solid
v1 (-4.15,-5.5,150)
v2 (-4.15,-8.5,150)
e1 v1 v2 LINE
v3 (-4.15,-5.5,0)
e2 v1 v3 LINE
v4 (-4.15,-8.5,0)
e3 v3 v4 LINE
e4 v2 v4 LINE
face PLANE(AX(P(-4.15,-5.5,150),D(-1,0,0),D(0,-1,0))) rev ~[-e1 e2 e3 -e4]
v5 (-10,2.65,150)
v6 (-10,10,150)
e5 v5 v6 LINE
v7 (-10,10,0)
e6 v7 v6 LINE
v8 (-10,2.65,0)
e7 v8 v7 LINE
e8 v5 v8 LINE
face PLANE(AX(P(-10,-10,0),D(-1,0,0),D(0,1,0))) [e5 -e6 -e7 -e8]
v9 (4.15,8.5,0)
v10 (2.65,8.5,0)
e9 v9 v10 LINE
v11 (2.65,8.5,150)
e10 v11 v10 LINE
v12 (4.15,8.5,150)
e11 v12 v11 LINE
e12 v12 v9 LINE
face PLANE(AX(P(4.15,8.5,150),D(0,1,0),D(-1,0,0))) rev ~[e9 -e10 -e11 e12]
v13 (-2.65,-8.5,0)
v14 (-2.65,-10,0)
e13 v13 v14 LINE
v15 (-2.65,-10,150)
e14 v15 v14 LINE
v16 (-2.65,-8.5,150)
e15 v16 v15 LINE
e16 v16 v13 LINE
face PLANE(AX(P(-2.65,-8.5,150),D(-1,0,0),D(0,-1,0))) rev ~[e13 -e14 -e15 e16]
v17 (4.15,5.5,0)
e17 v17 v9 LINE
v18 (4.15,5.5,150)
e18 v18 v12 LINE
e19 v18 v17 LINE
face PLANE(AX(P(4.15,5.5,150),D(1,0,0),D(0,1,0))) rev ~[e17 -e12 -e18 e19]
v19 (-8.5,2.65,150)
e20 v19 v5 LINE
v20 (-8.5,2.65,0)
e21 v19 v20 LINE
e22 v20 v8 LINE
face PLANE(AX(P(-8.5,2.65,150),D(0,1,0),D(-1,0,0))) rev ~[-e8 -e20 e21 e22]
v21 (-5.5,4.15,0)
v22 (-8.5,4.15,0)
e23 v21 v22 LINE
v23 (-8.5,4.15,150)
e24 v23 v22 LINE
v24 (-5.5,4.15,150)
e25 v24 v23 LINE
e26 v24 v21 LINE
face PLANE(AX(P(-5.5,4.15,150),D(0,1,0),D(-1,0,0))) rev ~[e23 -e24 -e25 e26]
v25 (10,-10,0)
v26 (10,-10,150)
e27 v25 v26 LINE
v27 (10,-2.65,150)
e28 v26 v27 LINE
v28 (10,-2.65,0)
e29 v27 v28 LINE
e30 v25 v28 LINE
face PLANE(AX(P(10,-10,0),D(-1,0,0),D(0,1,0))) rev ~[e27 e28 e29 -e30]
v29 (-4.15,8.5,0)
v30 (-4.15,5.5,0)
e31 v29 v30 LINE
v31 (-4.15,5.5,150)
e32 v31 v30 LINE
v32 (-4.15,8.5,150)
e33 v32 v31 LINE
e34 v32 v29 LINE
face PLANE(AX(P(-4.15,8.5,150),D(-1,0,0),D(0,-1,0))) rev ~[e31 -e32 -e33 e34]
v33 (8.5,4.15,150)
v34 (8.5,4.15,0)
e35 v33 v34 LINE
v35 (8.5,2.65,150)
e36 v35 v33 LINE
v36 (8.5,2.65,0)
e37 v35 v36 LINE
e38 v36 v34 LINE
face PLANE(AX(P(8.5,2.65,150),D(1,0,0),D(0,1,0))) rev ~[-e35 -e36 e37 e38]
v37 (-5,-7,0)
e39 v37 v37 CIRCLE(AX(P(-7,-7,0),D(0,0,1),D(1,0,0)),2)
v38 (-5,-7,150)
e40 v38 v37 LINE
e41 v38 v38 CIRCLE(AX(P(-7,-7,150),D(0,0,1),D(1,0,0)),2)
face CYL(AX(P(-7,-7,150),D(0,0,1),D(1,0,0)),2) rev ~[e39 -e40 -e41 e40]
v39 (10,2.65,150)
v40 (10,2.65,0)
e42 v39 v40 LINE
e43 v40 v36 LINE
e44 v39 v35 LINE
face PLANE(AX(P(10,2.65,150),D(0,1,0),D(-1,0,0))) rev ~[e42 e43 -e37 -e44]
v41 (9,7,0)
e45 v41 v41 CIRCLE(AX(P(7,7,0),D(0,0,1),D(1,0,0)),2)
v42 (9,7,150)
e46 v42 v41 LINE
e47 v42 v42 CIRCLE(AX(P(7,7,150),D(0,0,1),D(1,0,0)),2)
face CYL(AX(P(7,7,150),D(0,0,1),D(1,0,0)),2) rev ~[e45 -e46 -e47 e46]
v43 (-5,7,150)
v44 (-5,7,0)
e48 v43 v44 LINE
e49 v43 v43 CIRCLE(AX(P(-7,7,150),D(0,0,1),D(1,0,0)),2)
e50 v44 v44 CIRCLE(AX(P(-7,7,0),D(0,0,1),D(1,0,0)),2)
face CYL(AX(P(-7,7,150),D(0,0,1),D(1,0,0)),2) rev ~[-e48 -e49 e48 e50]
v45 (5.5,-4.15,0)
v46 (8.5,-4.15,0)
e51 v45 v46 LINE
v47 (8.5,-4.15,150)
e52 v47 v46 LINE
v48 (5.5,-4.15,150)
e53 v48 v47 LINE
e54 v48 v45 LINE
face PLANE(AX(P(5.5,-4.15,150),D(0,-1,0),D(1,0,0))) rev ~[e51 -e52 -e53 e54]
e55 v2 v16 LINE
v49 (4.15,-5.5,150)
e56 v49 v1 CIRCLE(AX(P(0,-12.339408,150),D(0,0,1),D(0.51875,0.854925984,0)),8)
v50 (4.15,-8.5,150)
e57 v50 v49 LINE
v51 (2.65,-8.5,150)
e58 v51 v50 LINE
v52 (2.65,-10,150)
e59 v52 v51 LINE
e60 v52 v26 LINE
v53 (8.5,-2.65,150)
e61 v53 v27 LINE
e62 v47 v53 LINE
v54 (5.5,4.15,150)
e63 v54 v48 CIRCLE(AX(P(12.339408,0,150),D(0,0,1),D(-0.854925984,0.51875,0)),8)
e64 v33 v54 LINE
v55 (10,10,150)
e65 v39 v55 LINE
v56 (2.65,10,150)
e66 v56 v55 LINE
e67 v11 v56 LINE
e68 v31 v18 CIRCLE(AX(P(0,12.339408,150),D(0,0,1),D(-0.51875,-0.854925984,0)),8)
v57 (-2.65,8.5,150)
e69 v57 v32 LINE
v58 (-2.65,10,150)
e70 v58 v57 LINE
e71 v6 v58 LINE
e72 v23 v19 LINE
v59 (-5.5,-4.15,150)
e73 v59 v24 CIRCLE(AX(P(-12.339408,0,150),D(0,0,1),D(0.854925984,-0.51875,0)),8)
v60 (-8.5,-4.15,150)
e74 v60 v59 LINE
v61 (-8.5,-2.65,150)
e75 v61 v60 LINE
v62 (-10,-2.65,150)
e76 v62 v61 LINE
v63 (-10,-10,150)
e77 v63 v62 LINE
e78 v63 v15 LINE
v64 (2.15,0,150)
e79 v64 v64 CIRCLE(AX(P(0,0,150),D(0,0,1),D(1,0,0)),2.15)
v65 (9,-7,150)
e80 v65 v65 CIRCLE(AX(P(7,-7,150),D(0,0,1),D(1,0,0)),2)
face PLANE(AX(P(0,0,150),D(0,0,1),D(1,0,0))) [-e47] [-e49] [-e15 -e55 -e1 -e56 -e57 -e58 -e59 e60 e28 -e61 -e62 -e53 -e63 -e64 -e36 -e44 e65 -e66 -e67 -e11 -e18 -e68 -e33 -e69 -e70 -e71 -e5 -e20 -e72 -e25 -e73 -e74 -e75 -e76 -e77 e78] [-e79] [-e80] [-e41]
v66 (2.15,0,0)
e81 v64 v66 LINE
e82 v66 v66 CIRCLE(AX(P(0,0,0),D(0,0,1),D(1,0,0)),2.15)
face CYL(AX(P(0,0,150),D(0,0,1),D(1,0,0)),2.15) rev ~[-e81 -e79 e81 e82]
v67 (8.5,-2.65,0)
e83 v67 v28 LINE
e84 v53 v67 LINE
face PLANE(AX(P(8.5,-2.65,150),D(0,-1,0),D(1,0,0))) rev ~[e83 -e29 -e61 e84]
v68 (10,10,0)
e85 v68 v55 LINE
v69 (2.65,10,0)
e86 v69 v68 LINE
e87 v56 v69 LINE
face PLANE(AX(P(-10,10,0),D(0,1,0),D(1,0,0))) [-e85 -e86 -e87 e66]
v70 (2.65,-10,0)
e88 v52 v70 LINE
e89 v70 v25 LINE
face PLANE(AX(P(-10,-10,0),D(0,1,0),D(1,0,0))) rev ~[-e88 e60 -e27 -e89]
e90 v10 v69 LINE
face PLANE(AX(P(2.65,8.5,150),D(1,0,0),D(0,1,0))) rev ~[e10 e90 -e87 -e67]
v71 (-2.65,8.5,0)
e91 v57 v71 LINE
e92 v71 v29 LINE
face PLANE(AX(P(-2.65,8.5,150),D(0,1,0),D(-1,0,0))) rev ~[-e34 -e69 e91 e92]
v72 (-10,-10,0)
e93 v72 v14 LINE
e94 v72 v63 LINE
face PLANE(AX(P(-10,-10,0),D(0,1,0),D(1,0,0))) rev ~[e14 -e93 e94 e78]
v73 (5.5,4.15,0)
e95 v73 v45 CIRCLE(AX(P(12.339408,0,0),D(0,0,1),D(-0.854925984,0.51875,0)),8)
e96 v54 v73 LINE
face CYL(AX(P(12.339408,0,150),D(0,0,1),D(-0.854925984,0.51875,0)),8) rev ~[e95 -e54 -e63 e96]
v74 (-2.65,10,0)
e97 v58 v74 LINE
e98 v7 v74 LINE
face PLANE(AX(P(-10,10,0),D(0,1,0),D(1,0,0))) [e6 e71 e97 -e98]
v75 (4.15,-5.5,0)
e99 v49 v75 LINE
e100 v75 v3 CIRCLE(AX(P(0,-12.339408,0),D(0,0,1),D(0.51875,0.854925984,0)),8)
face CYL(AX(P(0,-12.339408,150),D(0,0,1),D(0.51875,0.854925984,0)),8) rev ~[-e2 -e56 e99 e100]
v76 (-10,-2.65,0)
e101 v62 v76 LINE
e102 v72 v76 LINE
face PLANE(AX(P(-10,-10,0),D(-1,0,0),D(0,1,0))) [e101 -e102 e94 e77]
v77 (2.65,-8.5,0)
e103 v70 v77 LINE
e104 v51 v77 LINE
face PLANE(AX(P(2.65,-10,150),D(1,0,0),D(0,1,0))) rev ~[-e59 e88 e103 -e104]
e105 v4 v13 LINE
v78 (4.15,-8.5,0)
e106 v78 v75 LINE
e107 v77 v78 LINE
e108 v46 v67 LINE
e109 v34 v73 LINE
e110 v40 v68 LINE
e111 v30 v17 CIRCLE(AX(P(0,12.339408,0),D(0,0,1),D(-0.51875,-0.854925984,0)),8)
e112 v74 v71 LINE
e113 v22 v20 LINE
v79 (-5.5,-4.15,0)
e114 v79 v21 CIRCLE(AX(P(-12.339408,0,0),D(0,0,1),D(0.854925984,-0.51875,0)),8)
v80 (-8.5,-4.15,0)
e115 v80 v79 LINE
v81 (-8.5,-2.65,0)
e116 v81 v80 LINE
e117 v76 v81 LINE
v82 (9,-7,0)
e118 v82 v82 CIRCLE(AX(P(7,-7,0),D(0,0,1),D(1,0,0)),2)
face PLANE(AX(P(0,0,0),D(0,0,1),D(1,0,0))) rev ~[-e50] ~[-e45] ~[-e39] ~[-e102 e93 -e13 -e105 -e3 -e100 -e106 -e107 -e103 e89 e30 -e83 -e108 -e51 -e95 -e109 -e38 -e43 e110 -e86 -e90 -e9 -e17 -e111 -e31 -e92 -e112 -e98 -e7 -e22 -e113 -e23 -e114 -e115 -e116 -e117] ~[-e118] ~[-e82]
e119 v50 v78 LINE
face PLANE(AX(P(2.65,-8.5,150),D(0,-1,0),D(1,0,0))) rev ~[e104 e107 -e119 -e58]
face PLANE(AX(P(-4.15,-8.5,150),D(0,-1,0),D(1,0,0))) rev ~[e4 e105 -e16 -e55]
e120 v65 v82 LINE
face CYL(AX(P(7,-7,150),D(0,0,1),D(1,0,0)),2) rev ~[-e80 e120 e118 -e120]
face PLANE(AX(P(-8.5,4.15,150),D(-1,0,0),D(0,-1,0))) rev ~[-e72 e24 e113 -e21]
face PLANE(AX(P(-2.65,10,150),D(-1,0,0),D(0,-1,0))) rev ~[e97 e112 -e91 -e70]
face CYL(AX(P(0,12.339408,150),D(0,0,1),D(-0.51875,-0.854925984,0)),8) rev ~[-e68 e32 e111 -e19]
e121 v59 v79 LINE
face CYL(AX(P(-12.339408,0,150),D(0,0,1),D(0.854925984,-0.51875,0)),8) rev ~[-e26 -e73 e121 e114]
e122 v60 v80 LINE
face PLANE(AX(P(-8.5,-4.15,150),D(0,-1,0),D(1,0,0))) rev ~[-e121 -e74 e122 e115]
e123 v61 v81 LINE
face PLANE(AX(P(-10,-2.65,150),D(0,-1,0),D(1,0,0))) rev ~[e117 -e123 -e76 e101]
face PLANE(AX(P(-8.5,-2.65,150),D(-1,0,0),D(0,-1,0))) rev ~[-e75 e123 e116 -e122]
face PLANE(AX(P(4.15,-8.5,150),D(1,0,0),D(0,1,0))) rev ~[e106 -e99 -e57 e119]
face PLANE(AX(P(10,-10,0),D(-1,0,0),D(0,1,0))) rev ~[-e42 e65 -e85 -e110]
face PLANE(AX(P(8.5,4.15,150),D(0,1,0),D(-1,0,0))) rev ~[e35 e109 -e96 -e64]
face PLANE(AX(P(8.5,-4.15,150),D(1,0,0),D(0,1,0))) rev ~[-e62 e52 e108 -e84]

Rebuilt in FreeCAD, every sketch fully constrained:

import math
import FreeCAD as App
import Part
import Sketcher
from FreeCAD import Vector
Q = App.Units.Quantity

doc = App.newDocument("Part")
body = doc.addObject("PartDesign::Body", "Body")

# Sketch on XY plane
sketch1 = body.newObject("Sketcher::SketchObject", "Sketch")
sketch1.AttachmentSupport = (doc.getObject("XY_Plane"), [""])
sketch1.MapMode = "FlatFace"
sketch1.addGeometry(Part.LineSegment(Vector(-10, 10, 0), Vector(-10, -10, 0)), False)
sketch1.addGeometry(Part.LineSegment(Vector(-10, -10, 0), Vector(10, -10, 0)), False)
sketch1.addGeometry(Part.LineSegment(Vector(10, -10, 0), Vector(10, 10, 0)), False)
sketch1.addGeometry(Part.LineSegment(Vector(10, 10, 0), Vector(-10, 10, 0)), False)
sketch1.addConstraint(Sketcher.Constraint("Coincident", 0, 2, 1, 1))
sketch1.addConstraint(Sketcher.Constraint("Coincident", 1, 2, 2, 1))
sketch1.addConstraint(Sketcher.Constraint("Coincident", 2, 2, 3, 1))
sketch1.addConstraint(Sketcher.Constraint("Coincident", 3, 2, 0, 1))
sketch1.addConstraint(Sketcher.Constraint("Vertical", 0))
sketch1.addConstraint(Sketcher.Constraint("Horizontal", 1))
sketch1.addConstraint(Sketcher.Constraint("Vertical", 2))
sketch1.addConstraint(Sketcher.Constraint("Horizontal", 3))
sketch1.addConstraint(Sketcher.Constraint("Symmetric", 0, 2, 2, 2, -1, 1))
sketch1.addConstraint(Sketcher.Constraint("Equal", 3, 0))
sketch1.addConstraint(Sketcher.Constraint("DistanceX", 1, 1, 1, 2, Q("20 mm")))
pad1 = body.newObject("PartDesign::Pad", "Pad")
pad1.Profile = sketch1
pad1.Length = 150

# Sketch on XY plane
sketch2 = body.newObject("Sketcher::SketchObject", "Sketch001")
sketch2.AttachmentSupport = (doc.getObject("XY_Plane"), [""])
sketch2.MapMode = "FlatFace"
sketch2.AttachmentOffset = App.Placement(Vector(0, 0, 150), App.Rotation())
sketch2.addGeometry(Part.Circle(Vector(0, 0, 0), Vector(0, 0, 1), 2.1), False)
sketch2.addGeometry(Part.Circle(Vector(-7, 7, 0), Vector(0, 0, 1), 2), False)
sketch2.addGeometry(Part.Circle(Vector(7, 7, 0), Vector(0, 0, 1), 2), False)
sketch2.addGeometry(Part.Circle(Vector(7, -7, 0), Vector(0, 0, 1), 2), False)
sketch2.addGeometry(Part.Circle(Vector(-7, -7, 0), Vector(0, 0, 1), 2), False)
sketch2.addGeometry(Part.LineSegment(Vector(-2.6, 10, 0), Vector(-2.6, 8.5, 0)), False)
sketch2.addGeometry(Part.LineSegment(Vector(-2.6, 8.5, 0), Vector(-4.2, 8.5, 0)), False)
sketch2.addGeometry(Part.LineSegment(Vector(-4.2, 8.5, 0), Vector(-4.2, 5.5, 0)), False)
sketch2.addGeometry(Part.ArcOfCircle(Part.Circle(Vector(0, 12.3, 0), Vector(0, 0, 1), 8), math.radians(-121), math.radians(-59)), False)
sketch2.addGeometry(Part.LineSegment(Vector(4.2, 5.5, 0), Vector(4.2, 8.5, 0)), False)
sketch2.addGeometry(Part.LineSegment(Vector(4.2, 8.5, 0), Vector(2.6, 8.5, 0)), False)
sketch2.addGeometry(Part.LineSegment(Vector(2.6, 8.5, 0), Vector(2.6, 10, 0)), False)
sketch2.addGeometry(Part.LineSegment(Vector(2.6, 10, 0), Vector(-2.6, 10, 0)), False)
sketch2.addGeometry(Part.LineSegment(Vector(10, 2.6, 0), Vector(8.5, 2.6, 0)), False)
sketch2.addGeometry(Part.LineSegment(Vector(8.5, 2.6, 0), Vector(8.5, 4.2, 0)), False)
sketch2.addGeometry(Part.LineSegment(Vector(8.5, 4.2, 0), Vector(5.5, 4.2, 0)), False)
sketch2.addGeometry(Part.ArcOfCircle(Part.Circle(Vector(12.3, 0, 0), Vector(0, 0, 1), 8), math.radians(149), math.radians(211)), False)
sketch2.addGeometry(Part.LineSegment(Vector(5.5, -4.2, 0), Vector(8.5, -4.2, 0)), False)
sketch2.addGeometry(Part.LineSegment(Vector(8.5, -4.2, 0), Vector(8.5, -2.6, 0)), False)
sketch2.addGeometry(Part.LineSegment(Vector(8.5, -2.6, 0), Vector(10, -2.6, 0)), False)
sketch2.addGeometry(Part.LineSegment(Vector(10, -2.6, 0), Vector(10, 2.6, 0)), False)
sketch2.addGeometry(Part.LineSegment(Vector(2.6, -10, 0), Vector(2.6, -8.5, 0)), False)
sketch2.addGeometry(Part.LineSegment(Vector(2.6, -8.5, 0), Vector(4.2, -8.5, 0)), False)
sketch2.addGeometry(Part.LineSegment(Vector(4.2, -8.5, 0), Vector(4.2, -5.5, 0)), False)
sketch2.addGeometry(Part.ArcOfCircle(Part.Circle(Vector(0, -12.3, 0), Vector(0, 0, 1), 8), math.radians(59), math.radians(121)), False)
sketch2.addGeometry(Part.LineSegment(Vector(-4.2, -5.5, 0), Vector(-4.2, -8.5, 0)), False)
sketch2.addGeometry(Part.LineSegment(Vector(-4.2, -8.5, 0), Vector(-2.6, -8.5, 0)), False)
sketch2.addGeometry(Part.LineSegment(Vector(-2.6, -8.5, 0), Vector(-2.6, -10, 0)), False)
sketch2.addGeometry(Part.LineSegment(Vector(-2.6, -10, 0), Vector(2.6, -10, 0)), False)
sketch2.addGeometry(Part.LineSegment(Vector(-10, -2.6, 0), Vector(-8.5, -2.6, 0)), False)
sketch2.addGeometry(Part.LineSegment(Vector(-8.5, -2.6, 0), Vector(-8.5, -4.2, 0)), False)
sketch2.addGeometry(Part.LineSegment(Vector(-8.5, -4.2, 0), Vector(-5.5, -4.2, 0)), False)
sketch2.addGeometry(Part.ArcOfCircle(Part.Circle(Vector(-12.3, 0, 0), Vector(0, 0, 1), 8), math.radians(-31), math.radians(31)), False)
sketch2.addGeometry(Part.LineSegment(Vector(-5.5, 4.2, 0), Vector(-8.5, 4.2, 0)), False)
sketch2.addGeometry(Part.LineSegment(Vector(-8.5, 4.2, 0), Vector(-8.5, 2.6, 0)), False)
sketch2.addGeometry(Part.LineSegment(Vector(-8.5, 2.6, 0), Vector(-10, 2.6, 0)), False)
sketch2.addGeometry(Part.LineSegment(Vector(-10, 2.6, 0), Vector(-10, -2.6, 0)), False)
sketch2.addConstraint(Sketcher.Constraint("Coincident", 5, 2, 6, 1))
sketch2.addConstraint(Sketcher.Constraint("Coincident", 6, 2, 7, 1))
sketch2.addConstraint(Sketcher.Constraint("Coincident", 7, 2, 8, 1))
sketch2.addConstraint(Sketcher.Constraint("Coincident", 8, 2, 9, 1))
sketch2.addConstraint(Sketcher.Constraint("Coincident", 9, 2, 10, 1))
sketch2.addConstraint(Sketcher.Constraint("Coincident", 10, 2, 11, 1))
sketch2.addConstraint(Sketcher.Constraint("Coincident", 11, 2, 12, 1))
sketch2.addConstraint(Sketcher.Constraint("Coincident", 12, 2, 5, 1))
sketch2.addConstraint(Sketcher.Constraint("Coincident", 13, 2, 14, 1))
sketch2.addConstraint(Sketcher.Constraint("Coincident", 14, 2, 15, 1))
sketch2.addConstraint(Sketcher.Constraint("Coincident", 15, 2, 16, 1))
sketch2.addConstraint(Sketcher.Constraint("Coincident", 16, 2, 17, 1))
sketch2.addConstraint(Sketcher.Constraint("Coincident", 17, 2, 18, 1))
sketch2.addConstraint(Sketcher.Constraint("Coincident", 18, 2, 19, 1))
sketch2.addConstraint(Sketcher.Constraint("Coincident", 19, 2, 20, 1))
sketch2.addConstraint(Sketcher.Constraint("Coincident", 20, 2, 13, 1))
sketch2.addConstraint(Sketcher.Constraint("Coincident", 21, 2, 22, 1))
sketch2.addConstraint(Sketcher.Constraint("Coincident", 22, 2, 23, 1))
sketch2.addConstraint(Sketcher.Constraint("Coincident", 23, 2, 24, 1))
sketch2.addConstraint(Sketcher.Constraint("Coincident", 24, 2, 25, 1))
sketch2.addConstraint(Sketcher.Constraint("Coincident", 25, 2, 26, 1))
sketch2.addConstraint(Sketcher.Constraint("Coincident", 26, 2, 27, 1))
sketch2.addConstraint(Sketcher.Constraint("Coincident", 27, 2, 28, 1))
sketch2.addConstraint(Sketcher.Constraint("Coincident", 28, 2, 21, 1))
sketch2.addConstraint(Sketcher.Constraint("Coincident", 29, 2, 30, 1))
sketch2.addConstraint(Sketcher.Constraint("Coincident", 30, 2, 31, 1))
sketch2.addConstraint(Sketcher.Constraint("Coincident", 31, 2, 32, 1))
sketch2.addConstraint(Sketcher.Constraint("Coincident", 32, 2, 33, 1))
sketch2.addConstraint(Sketcher.Constraint("Coincident", 33, 2, 34, 1))
sketch2.addConstraint(Sketcher.Constraint("Coincident", 34, 2, 35, 1))
sketch2.addConstraint(Sketcher.Constraint("Coincident", 35, 2, 36, 1))
sketch2.addConstraint(Sketcher.Constraint("Coincident", 36, 2, 29, 1))
sketch2.addConstraint(Sketcher.Constraint("Vertical", 5))
sketch2.addConstraint(Sketcher.Constraint("Horizontal", 6))
sketch2.addConstraint(Sketcher.Constraint("Vertical", 7))
sketch2.addConstraint(Sketcher.Constraint("Vertical", 9))
sketch2.addConstraint(Sketcher.Constraint("Horizontal", 10))
sketch2.addConstraint(Sketcher.Constraint("Vertical", 11))
sketch2.addConstraint(Sketcher.Constraint("Horizontal", 12))
sketch2.addConstraint(Sketcher.Constraint("Horizontal", 13))
sketch2.addConstraint(Sketcher.Constraint("Vertical", 14))
sketch2.addConstraint(Sketcher.Constraint("Horizontal", 15))
sketch2.addConstraint(Sketcher.Constraint("Horizontal", 17))
sketch2.addConstraint(Sketcher.Constraint("Vertical", 18))
sketch2.addConstraint(Sketcher.Constraint("Horizontal", 19))
sketch2.addConstraint(Sketcher.Constraint("Vertical", 20))
sketch2.addConstraint(Sketcher.Constraint("Vertical", 21))
sketch2.addConstraint(Sketcher.Constraint("Horizontal", 22))
sketch2.addConstraint(Sketcher.Constraint("Vertical", 23))
sketch2.addConstraint(Sketcher.Constraint("Vertical", 25))
sketch2.addConstraint(Sketcher.Constraint("Horizontal", 26))
sketch2.addConstraint(Sketcher.Constraint("Vertical", 27))
sketch2.addConstraint(Sketcher.Constraint("Horizontal", 28))
sketch2.addConstraint(Sketcher.Constraint("Horizontal", 29))
sketch2.addConstraint(Sketcher.Constraint("Vertical", 30))
sketch2.addConstraint(Sketcher.Constraint("Horizontal", 31))
sketch2.addConstraint(Sketcher.Constraint("Horizontal", 33))
sketch2.addConstraint(Sketcher.Constraint("Vertical", 34))
sketch2.addConstraint(Sketcher.Constraint("Horizontal", 35))
sketch2.addConstraint(Sketcher.Constraint("Vertical", 36))
sketch2.addConstraint(Sketcher.Constraint("Coincident", 0, 3, -1, 1))
sketch2.addConstraint(Sketcher.Constraint("Equal", 1, 2))
sketch2.addConstraint(Sketcher.Constraint("Equal", 2, 3))
sketch2.addConstraint(Sketcher.Constraint("Equal", 3, 4))
sketch2.addConstraint(Sketcher.Constraint("Equal", 8, 16))
sketch2.addConstraint(Sketcher.Constraint("Equal", 16, 24))
sketch2.addConstraint(Sketcher.Constraint("Equal", 24, 32))
sketch2.addConstraint(Sketcher.Constraint("Symmetric", 1, 3, 3, 3, -1, 1))
sketch2.addConstraint(Sketcher.Constraint("Symmetric", 2, 3, 4, 3, -1, 1))
sketch2.addConstraint(Sketcher.Constraint("Symmetric", 8, 3, 24, 3, -1, 1))
sketch2.addConstraint(Sketcher.Constraint("Symmetric", 16, 3, 32, 3, -1, 1))
sketch2.addConstraint(Sketcher.Constraint("Symmetric", 5, 2, 21, 2, -1, 1))
sketch2.addConstraint(Sketcher.Constraint("Symmetric", 9, 2, 25, 2, -1, 1))
sketch2.addConstraint(Sketcher.Constraint("Symmetric", 11, 2, 27, 2, -1, 1))
sketch2.addConstraint(Sketcher.Constraint("Symmetric", 13, 2, 29, 2, -1, 1))
sketch2.addConstraint(Sketcher.Constraint("Symmetric", 17, 2, 33, 2, -1, 1))
sketch2.addConstraint(Sketcher.Constraint("Symmetric", 19, 2, 35, 2, -1, 1))
sketch2.addConstraint(Sketcher.Constraint("Symmetric", 1, 3, 2, 3, -2))
sketch2.addConstraint(Sketcher.Constraint("Symmetric", 7, 2, 8, 2, -2))
sketch2.addConstraint(Sketcher.Constraint("Symmetric", 5, 2, 10, 2, -2))
sketch2.addConstraint(Sketcher.Constraint("Symmetric", 18, 2, 29, 2, -2))
sketch2.addConstraint(Sketcher.Constraint("Symmetric", 16, 2, 31, 2, -2))
sketch2.addConstraint(Sketcher.Constraint("Horizontal", 23, 2, 24, 2))
sketch2.addConstraint(Sketcher.Constraint("Horizontal", 15, 2, 32, 2))
sketch2.addConstraint(Sketcher.Constraint("Equal", 10, 13))
sketch2.addConstraint(Sketcher.Constraint("Equal", 35, 5))
sketch2.addConstraint(Sketcher.Constraint("Equal", 33, 7))
sketch2.addConstraint(Sketcher.Constraint("Equal", 11, 14))
sketch2.addConstraint(Sketcher.Constraint("Equal", 28, 20))
sketch2.addConstraint(Sketcher.Constraint("Diameter", 1, Q("4 mm")))
sketch2.addConstraint(Sketcher.Constraint("Radius", 8, Q("8 mm")))
sketch2.addConstraint(Sketcher.Constraint("Diameter", 0, Q("4.3 mm")))
sketch2.addConstraint(Sketcher.Constraint("DistanceX", 15, 2, 15, 1, Q("3 mm")))
sketch2.addConstraint(Sketcher.Constraint("DistanceX", 6, 2, 6, 1, Q("1.5 mm")))
sketch2.addConstraint(Sketcher.Constraint("DistanceX", 12, 2, 12, 1, Q("5.3 mm")))
sketch2.addConstraint(Sketcher.Constraint("DistanceX", 1, 3, -1, 1, Q("7 mm")))
sketch2.addConstraint(Sketcher.Constraint("DistanceY", -1, 1, 1, 3, Q("7 mm")))
sketch2.addConstraint(Sketcher.Constraint("DistanceY", -1, 1, 11, 2, Q("10 mm")))
sketch2.addConstraint(Sketcher.Constraint("DistanceX", -1, 1, 19, 2, Q("10 mm")))
pocket1 = body.newObject("PartDesign::Pocket", "Pocket")
pocket1.Profile = sketch2
pocket1.Length = 300

doc.recompute()
